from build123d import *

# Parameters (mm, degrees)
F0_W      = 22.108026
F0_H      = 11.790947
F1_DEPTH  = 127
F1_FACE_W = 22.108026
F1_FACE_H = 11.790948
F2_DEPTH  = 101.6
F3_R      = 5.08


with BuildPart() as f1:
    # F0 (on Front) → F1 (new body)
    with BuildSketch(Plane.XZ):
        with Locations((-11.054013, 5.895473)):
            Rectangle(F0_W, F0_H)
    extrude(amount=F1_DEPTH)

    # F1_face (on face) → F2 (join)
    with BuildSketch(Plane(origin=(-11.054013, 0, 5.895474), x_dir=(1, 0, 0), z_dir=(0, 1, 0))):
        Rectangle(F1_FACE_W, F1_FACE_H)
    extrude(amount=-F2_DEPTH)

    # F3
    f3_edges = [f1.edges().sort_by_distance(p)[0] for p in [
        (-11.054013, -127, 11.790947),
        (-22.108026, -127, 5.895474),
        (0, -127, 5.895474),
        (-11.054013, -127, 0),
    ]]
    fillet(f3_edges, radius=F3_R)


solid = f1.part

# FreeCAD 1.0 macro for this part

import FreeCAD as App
import Part
import Sketcher

V = App.Vector


def edges_at(feature, points):
    """Names of the edges that pass closest to the given points."""
    edges = feature.Shape.Edges
    near = lambda p: min(range(len(edges)), key=lambda i: edges[i].distToShape(Part.Vertex(*p))[0])
    return sorted({f"Edge{near(p) + 1}" for p in points})


def add_polygon(sketch, points):
    """Adds a closed chain of lines whose ends are joined by coincident constraints."""
    first, n = sketch.GeometryCount, len(points)
    for a, b in zip(points, points[1:] + points[:1]):
        sketch.addGeometry(Part.LineSegment(App.Vector(*a, 0), App.Vector(*b, 0)), False)
    for i in range(n):
        sketch.addConstraint(Sketcher.Constraint("Coincident", first + i, 2, first + (i + 1) % n, 1))

doc = App.newDocument("Part")
params = doc.addObject("Spreadsheet::Sheet", "Params")
for row, (alias, value) in enumerate([
    ("pad1_length", "5 in"),
    ("pad2_length", "4 in"),
    ("fillet_radius", "0.2 in"),
], start=1):
    params.set(f"A{row}", alias)
    params.set(f"B{row}", "=" + value)
    params.setAlias(f"B{row}", alias)

body = doc.addObject("PartDesign::Body", "Body")

sketch1 = doc.addObject("Sketcher::SketchObject", "Sketch")
body.addObject(sketch1)
sketch1.AttachmentSupport = (doc.XZ_Plane, [""])
sketch1.MapMode = "FlatFace"
add_polygon(sketch1, [(-22.108026, 11.790947), (-22.108026, 0), (0, 0), (0, 11.790947)])
sketch1.addConstraint(Sketcher.Constraint("Vertical", 0))
sketch1.addConstraint(Sketcher.Constraint("Horizontal", 1))
sketch1.addConstraint(Sketcher.Constraint("Vertical", 2))
sketch1.addConstraint(Sketcher.Constraint("Horizontal", 3))
sketch1.addConstraint(Sketcher.Constraint("Coincident", 1, 2, -1, 1))
sketch1.addConstraint(Sketcher.Constraint("DistanceX", 1, 1, 1, 2, 22.108026))
sketch1.addConstraint(Sketcher.Constraint("DistanceY", 0, 2, 0, 1, 11.790947))
pad1 = doc.addObject("PartDesign::Pad", "Pad")
body.addObject(pad1)
pad1.Profile = sketch1
pad1.setExpression("Length", "Params.pad1_length")

sketch2 = doc.addObject("Sketcher::SketchObject", "Sketch001")
body.addObject(sketch2)
sketch2.AttachmentSupport = (doc.XZ_Plane, [""])
sketch2.MapMode = "FlatFace"
add_polygon(sketch2, [(-22.108026, 0), (-22.108026, 11.790948), (0, 11.790948), (0, 0)])
sketch2.addConstraint(Sketcher.Constraint("Vertical", 0))
sketch2.addConstraint(Sketcher.Constraint("Horizontal", 1))
sketch2.addConstraint(Sketcher.Constraint("Vertical", 2))
sketch2.addConstraint(Sketcher.Constraint("Horizontal", 3))
sketch2.addConstraint(Sketcher.Constraint("Coincident", 2, 2, -1, 1))
sketch2.addConstraint(Sketcher.Constraint("DistanceX", 1, 1, 1, 2, 22.108026))
sketch2.addConstraint(Sketcher.Constraint("DistanceY", 0, 1, 0, 2, 11.790948))
pad2 = doc.addObject("PartDesign::Pad", "Pad001")
body.addObject(pad2)
pad2.Profile = sketch2
pad2.setExpression("Length", "Params.pad2_length")
doc.recompute()

fillet = doc.addObject("PartDesign::Fillet", "Fillet")
body.addObject(fillet)
fillet.Base = (pad2, edges_at(pad2, [
    (-11.054, -127, 11.791),
    (-22.108, -127, 5.895),
    (0, -127, 5.895),
    (-11.054, -127, 0),
]))
fillet.setExpression("Radius", "Params.fillet_radius")

doc.recompute()
